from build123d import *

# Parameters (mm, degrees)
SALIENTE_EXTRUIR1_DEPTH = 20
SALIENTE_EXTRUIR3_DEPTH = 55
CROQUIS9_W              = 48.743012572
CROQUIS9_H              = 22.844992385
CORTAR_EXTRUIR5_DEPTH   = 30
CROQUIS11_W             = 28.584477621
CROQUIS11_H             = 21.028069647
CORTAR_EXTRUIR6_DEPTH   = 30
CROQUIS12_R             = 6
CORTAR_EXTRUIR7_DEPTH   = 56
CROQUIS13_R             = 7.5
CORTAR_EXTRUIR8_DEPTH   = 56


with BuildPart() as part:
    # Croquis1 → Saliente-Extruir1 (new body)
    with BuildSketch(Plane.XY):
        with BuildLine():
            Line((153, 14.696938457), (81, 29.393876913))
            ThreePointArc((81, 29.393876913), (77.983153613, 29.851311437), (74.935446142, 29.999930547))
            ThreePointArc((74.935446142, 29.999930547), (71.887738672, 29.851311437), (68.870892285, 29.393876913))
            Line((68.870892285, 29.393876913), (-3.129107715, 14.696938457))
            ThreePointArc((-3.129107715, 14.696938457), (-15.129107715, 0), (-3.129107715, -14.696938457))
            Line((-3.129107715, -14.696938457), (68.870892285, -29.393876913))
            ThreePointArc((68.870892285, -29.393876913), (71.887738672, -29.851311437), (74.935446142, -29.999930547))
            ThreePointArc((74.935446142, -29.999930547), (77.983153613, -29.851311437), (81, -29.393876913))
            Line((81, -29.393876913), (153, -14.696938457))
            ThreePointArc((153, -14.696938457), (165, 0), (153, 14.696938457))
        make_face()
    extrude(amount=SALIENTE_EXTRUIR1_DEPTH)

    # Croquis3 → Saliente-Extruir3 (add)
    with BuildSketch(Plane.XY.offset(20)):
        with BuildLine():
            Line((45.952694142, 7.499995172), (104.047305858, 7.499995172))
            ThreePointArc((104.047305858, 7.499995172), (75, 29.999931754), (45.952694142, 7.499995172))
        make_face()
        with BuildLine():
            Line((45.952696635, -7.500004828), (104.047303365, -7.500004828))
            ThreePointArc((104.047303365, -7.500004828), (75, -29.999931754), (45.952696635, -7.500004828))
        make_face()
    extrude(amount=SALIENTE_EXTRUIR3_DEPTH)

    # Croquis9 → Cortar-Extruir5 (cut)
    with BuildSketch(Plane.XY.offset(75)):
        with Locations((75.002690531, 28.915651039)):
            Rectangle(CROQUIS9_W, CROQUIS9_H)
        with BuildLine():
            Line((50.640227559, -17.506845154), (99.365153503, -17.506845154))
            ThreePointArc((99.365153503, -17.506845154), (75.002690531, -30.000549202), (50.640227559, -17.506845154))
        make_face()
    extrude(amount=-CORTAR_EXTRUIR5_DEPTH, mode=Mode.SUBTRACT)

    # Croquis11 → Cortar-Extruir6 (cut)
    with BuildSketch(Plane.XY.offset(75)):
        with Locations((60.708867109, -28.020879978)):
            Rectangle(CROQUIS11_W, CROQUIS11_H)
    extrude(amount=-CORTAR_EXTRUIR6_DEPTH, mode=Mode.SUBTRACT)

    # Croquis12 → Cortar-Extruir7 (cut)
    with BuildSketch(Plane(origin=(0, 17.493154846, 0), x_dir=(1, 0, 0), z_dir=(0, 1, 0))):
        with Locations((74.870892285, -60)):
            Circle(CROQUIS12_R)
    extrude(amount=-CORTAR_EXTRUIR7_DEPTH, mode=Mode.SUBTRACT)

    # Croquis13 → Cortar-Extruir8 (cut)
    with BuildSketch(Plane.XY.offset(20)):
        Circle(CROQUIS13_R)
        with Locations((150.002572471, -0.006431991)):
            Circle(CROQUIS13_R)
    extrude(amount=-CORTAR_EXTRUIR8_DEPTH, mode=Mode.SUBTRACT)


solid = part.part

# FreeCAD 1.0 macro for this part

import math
import FreeCAD as App
import Part
import Sketcher


def add_polygon(sketch, points):
    """Adds a closed chain of lines whose ends are joined by coincident constraints."""
    first, n = sketch.GeometryCount, len(points)
    for a, b in zip(points, points[1:] + points[:1]):
        sketch.addGeometry(Part.LineSegment(App.Vector(*a, 0), App.Vector(*b, 0)), False)
    for i in range(n):
        sketch.addConstraint(Sketcher.Constraint("Coincident", first + i, 2, first + (i + 1) % n, 1))

doc = App.newDocument("Part")
body = doc.addObject("PartDesign::Body", "Body")

sketch1 = body.newObject("Sketcher::SketchObject", "Sketch")
sketch1.AttachmentSupport = (doc.getObject("XY_Plane"), [""])
sketch1.MapMode = "FlatFace"
sketch1.addGeometry(Part.LineSegment(App.Vector(153, 15, 0), App.Vector(81, 29, 0)), False)
sketch1.addGeometry(Part.ArcOfCircle(Part.Circle(App.Vector(75, 0, 0), App.Vector(0, 0, 1), 30), math.radians(78.46), math.radians(90.12)), False)
sketch1.addGeometry(Part.ArcOfCircle(Part.Circle(App.Vector(75, 0, 0), App.Vector(0, 0, 1), 30), math.radians(89.88), math.radians(101.54)), False)
sketch1.addGeometry(Part.LineSegment(App.Vector(69, 29, 0), App.Vector(-3, 15, 0)), False)
sketch1.addGeometry(Part.ArcOfCircle(Part.Circle(App.Vector(0, 0, 0), App.Vector(0, 0, 1), 15), math.radians(102), math.radians(258)), False)
sketch1.addGeometry(Part.LineSegment(App.Vector(-3, -15, 0), App.Vector(69, -29, 0)), False)
sketch1.addGeometry(Part.ArcOfCircle(Part.Circle(App.Vector(75, 0, 0), App.Vector(0, 0, 1), 30), math.radians(-101.54), math.radians(-89.88)), False)
sketch1.addGeometry(Part.ArcOfCircle(Part.Circle(App.Vector(75, 0, 0), App.Vector(0, 0, 1), 30), math.radians(-90.12), math.radians(-78.46)), False)
sketch1.addGeometry(Part.LineSegment(App.Vector(81, -29, 0), App.Vector(153, -15, 0)), False)
sketch1.addGeometry(Part.ArcOfCircle(Part.Circle(App.Vector(150, 0, 0), App.Vector(0, 0, 1), 15), math.radians(-78), math.radians(78)), False)
sketch1.addConstraint(Sketcher.Constraint("Tangent", 0, 2, 1, 1))
sketch1.addConstraint(Sketcher.Constraint("Coincident", 1, 2, 2, 1))
sketch1.addConstraint(Sketcher.Constraint("Tangent", 2, 2, 3, 1))
sketch1.addConstraint(Sketcher.Constraint("Tangent", 3, 2, 4, 1))
sketch1.addConstraint(Sketcher.Constraint("Tangent", 4, 2, 5, 1))
sketch1.addConstraint(Sketcher.Constraint("Tangent", 5, 2, 6, 1))
sketch1.addConstraint(Sketcher.Constraint("Coincident", 6, 2, 7, 1))
sketch1.addConstraint(Sketcher.Constraint("Tangent", 7, 2, 8, 1))
sketch1.addConstraint(Sketcher.Constraint("Tangent", 8, 2, 9, 1))
sketch1.addConstraint(Sketcher.Constraint("Tangent", 9, 2, 0, 1))
sketch1.addConstraint(Sketcher.Constraint("Coincident", 6, 3, 2, 3))
sketch1.addConstraint(Sketcher.Constraint("Coincident", 7, 3, 1, 3))
sketch1.addConstraint(Sketcher.Constraint("Equal", 1, 2))
sketch1.addConstraint(Sketcher.Constraint("Equal", 2, 6))
sketch1.addConstraint(Sketcher.Constraint("Equal", 6, 7))
sketch1.addConstraint(Sketcher.Constraint("Equal", 4, 9))
sketch1.addConstraint(Sketcher.Constraint("Symmetric", 3, 2, 4, 2, -1))
sketch1.addConstraint(Sketcher.Constraint("Symmetric", 0, 2, 7, 2, -1))
sketch1.addConstraint(Sketcher.Constraint("Parallel", 0, 5))
sketch1.addConstraint(Sketcher.Constraint("Radius", 1, 30.0))
sketch1.addConstraint(Sketcher.Constraint("Radius", 4, 15.0))
sketch1.addConstraint(Sketcher.Constraint("DistanceX", -1, 1, 1, 3, 75.0))
sketch1.addConstraint(Sketcher.Constraint("DistanceX", -1, 1, 9, 3, 150.0))
sketch1.addConstraint(Sketcher.Constraint("DistanceX", -1, 1, 2, 3, 74.870892))
pad1 = body.newObject("PartDesign::Pad", "Pad")
pad1.Profile = sketch1
pad1.Length = 20

sketch2 = body.newObject("Sketcher::SketchObject", "Sketch001")
sketch2.AttachmentSupport = (doc.getObject("XY_Plane"), [""])
sketch2.MapMode = "FlatFace"
sketch2.AttachmentOffset = App.Placement(App.Vector(0, 0, 20), App.Rotation())
sketch2.addGeometry(Part.LineSegment(App.Vector(46, 7, 0), App.Vector(104, 7, 0)), False)
sketch2.addGeometry(Part.ArcOfCircle(Part.Circle(App.Vector(75, 0, 0), App.Vector(0, 0, 1), 30), math.radians(14), math.radians(166)), False)
sketch2.addGeometry(Part.LineSegment(App.Vector(104, -8, 0), App.Vector(46, -8, 0)), False)
sketch2.addGeometry(Part.ArcOfCircle(Part.Circle(App.Vector(75, 0, 0), App.Vector(0, 0, 1), 30), math.radians(-166), math.radians(-14)), False)
sketch2.addConstraint(Sketcher.Constraint("Coincident", 0, 1, 1, 2))
sketch2.addConstraint(Sketcher.Constraint("Coincident", 1, 1, 0, 2))
sketch2.addConstraint(Sketcher.Constraint("Coincident", 2, 1, 3, 2))
sketch2.addConstraint(Sketcher.Constraint("Coincident", 3, 1, 2, 2))
sketch2.addConstraint(Sketcher.Constraint("Horizontal", 0))
sketch2.addConstraint(Sketcher.Constraint("Horizontal", 2))
sketch2.addConstraint(Sketcher.Constraint("Coincident", 3, 3, 1, 3))
sketch2.addConstraint(Sketcher.Constraint("Equal", 1, 3))
sketch2.addConstraint(Sketcher.Constraint("Symmetric", 1, 1, 2, 1, -1))
sketch2.addConstraint(Sketcher.Constraint("DistanceX", -1, 1, 1, 3, 75.0))
sketch2.addConstraint(Sketcher.Constraint("DistanceY", 2, 1, 1, 1, 15.0))
sketch2.addConstraint(Sketcher.Constraint("Radius", 1, 29.999932))
pad2 = body.newObject("PartDesign::Pad", "Pad001")
pad2.Profile = sketch2
pad2.Length = 55

sketch3 = body.newObject("Sketcher::SketchObject", "Sketch002")
sketch3.AttachmentSupport = (doc.getObject("XY_Plane"), [""])
sketch3.MapMode = "FlatFace"
sketch3.AttachmentOffset = App.Placement(App.Vector(0, 0, 75), App.Rotation())
add_polygon(sketch3, [(51, 40), (51, 17), (99, 17), (99, 40)])
sketch3.addGeometry(Part.LineSegment(App.Vector(99, -18, 0), App.Vector(51, -18, 0)), False)
sketch3.addGeometry(Part.ArcOfCircle(Part.Circle(App.Vector(75, 0, 0), App.Vector(0, 0, 1), 30), math.radians(-144), math.radians(-36)), False)
sketch3.addConstraint(Sketcher.Constraint("Coincident", 4, 1, 5, 2))
sketch3.addConstraint(Sketcher.Constraint("Coincident", 5, 1, 4, 2))
sketch3.addConstraint(Sketcher.Constraint("Vertical", 0))
sketch3.addConstraint(Sketcher.Constraint("Horizontal", 1))
sketch3.addConstraint(Sketcher.Constraint("Vertical", 2))
sketch3.addConstraint(Sketcher.Constraint("Horizontal", 3))
sketch3.addConstraint(Sketcher.Constraint("Horizontal", 4))
sketch3.addConstraint(Sketcher.Constraint("Radius", 5, 30.0))
sketch3.addConstraint(Sketcher.Constraint("DistanceY", 4, 1, 1, 2, 35.0))
sketch3.addConstraint(Sketcher.Constraint("DistanceX", 1, 1, 1, 2, 48.743013))
sketch3.addConstraint(Sketcher.Constraint("DistanceX", 4, 2, 4, 1, 48.724926))
sketch3.addConstraint(Sketcher.Constraint("DistanceY", 0, 2, 0, 1, 22.844992))
sketch3.addConstraint(Sketcher.Constraint("DistanceX", -1, 1, 5, 3, 75.002691))
sketch3.addConstraint(Sketcher.Constraint("DistanceY", 5, 3, -1, 1, 0.000549))
sketch3.addConstraint(Sketcher.Constraint("DistanceX", 0, 2, 4, 1, 48.733969))
pocket1 = body.newObject("PartDesign::Pocket", "Pocket")
pocket1.Profile = sketch3
pocket1.Length = 30

sketch4 = body.newObject("Sketcher::SketchObject", "Sketch003")
sketch4.AttachmentSupport = (doc.getObject("XY_Plane"), [""])
sketch4.MapMode = "FlatFace"
sketch4.AttachmentOffset = App.Placement(App.Vector(0, 0, 75), App.Rotation())
add_polygon(sketch4, [(46, -18), (46, -39), (75, -39), (75, -18)])
sketch4.addConstraint(Sketcher.Constraint("Vertical", 0))
sketch4.addConstraint(Sketcher.Constraint("Horizontal", 1))
sketch4.addConstraint(Sketcher.Constraint("Vertical", 2))
sketch4.addConstraint(Sketcher.Constraint("Horizontal", 3))
sketch4.addConstraint(Sketcher.Constraint("DistanceY", 0, 2, 0, 1, 21.02807))
sketch4.addConstraint(Sketcher.Constraint("DistanceX", 1, 1, 1, 2, 28.584478))
sketch4.addConstraint(Sketcher.Constraint("DistanceX", -1, 1, 0, 2, 46.416628))
sketch4.addConstraint(Sketcher.Constraint("DistanceY", 0, 2, -1, 1, 38.534915))
pocket2 = body.newObject("PartDesign::Pocket", "Pocket001")
pocket2.Profile = sketch4
pocket2.Length = 30

sketch5 = body.newObject("Sketcher::SketchObject", "Sketch004")
sketch5.AttachmentSupport = (doc.getObject("XZ_Plane"), [""])
sketch5.MapMode = "FlatFace"
sketch5.AttachmentOffset = App.Placement(App.Vector(0, 0, -17.493155), App.Rotation())
sketch5.addGeometry(Part.Circle(App.Vector(75, 60, 0), App.Vector(0, 0, 1), 6), False)
sketch5.addConstraint(Sketcher.Constraint("Diameter", 0, 12.0))
sketch5.addConstraint(Sketcher.Constraint("DistanceY", -1, 1, 0, 3, 60.0))
sketch5.addConstraint(Sketcher.Constraint("DistanceX", -1, 1, 0, 3, 74.870892))
pocket3 = body.newObject("PartDesign::Pocket", "Pocket002")
pocket3.Profile = sketch5
pocket3.Length = 56
pocket3.Reversed = True

sketch6 = body.newObject("Sketcher::SketchObject", "Sketch005")
sketch6.AttachmentSupport = (doc.getObject("XY_Plane"), [""])
sketch6.MapMode = "FlatFace"
sketch6.AttachmentOffset = App.Placement(App.Vector(0, 0, 20), App.Rotation())
sketch6.addGeometry(Part.Circle(App.Vector(0, 0, 0), App.Vector(0, 0, 1), 8), False)
sketch6.addGeometry(Part.Circle(App.Vector(150, 0, 0), App.Vector(0, 0, 1), 8), False)
sketch6.addConstraint(Sketcher.Constraint("Coincident", 0, 3, -1, 1))
sketch6.addConstraint(Sketcher.Constraint("Equal", 0, 1))
sketch6.addConstraint(Sketcher.Constraint("Diameter", 0, 15.0))
sketch6.addConstraint(Sketcher.Constraint("DistanceY", 1, 3, -1, 1, 0.006432))
sketch6.addConstraint(Sketcher.Constraint("DistanceX", -1, 1, 1, 3, 150.002572))
pocket4 = body.newObject("PartDesign::Pocket", "Pocket003")
pocket4.Profile = sketch6
pocket4.Length = 56

doc.recompute()
